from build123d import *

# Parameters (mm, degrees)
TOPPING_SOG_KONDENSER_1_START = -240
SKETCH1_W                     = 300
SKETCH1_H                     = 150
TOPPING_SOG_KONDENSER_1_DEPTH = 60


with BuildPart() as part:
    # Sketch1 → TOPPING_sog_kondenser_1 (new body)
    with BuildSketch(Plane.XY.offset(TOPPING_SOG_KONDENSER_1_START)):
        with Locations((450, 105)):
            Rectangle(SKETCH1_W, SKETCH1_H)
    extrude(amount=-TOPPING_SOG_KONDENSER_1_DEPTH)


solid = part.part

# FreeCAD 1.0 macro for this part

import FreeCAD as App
import Part
import Sketcher
from FreeCAD import Vector


def add_polygon(sketch, points):
    """Adds a closed chain of lines whose ends are joined by coincident constraints."""
    first, n = sketch.GeometryCount, len(points)
    for a, b in zip(points, points[1:] + points[:1]):
        sketch.addGeometry(Part.LineSegment(App.Vector(*a, 0), App.Vector(*b, 0)), False)
    for i in range(n):
        sketch.addConstraint(Sketcher.Constraint("Coincident", first + i, 2, first + (i + 1) % n, 1))

doc = App.newDocument("Part")
body = doc.addObject("PartDesign::Body", "Body")

# Sketch on XY plane
sketch1 = body.newObject("Sketcher::SketchObject", "Sketch")
sketch1.AttachmentSupport = (doc.getObject("XY_Plane"), [""])
sketch1.MapMode = "FlatFace"
sketch1.AttachmentOffset = App.Placement(Vector(0, 0, -240), App.Rotation())
add_polygon(sketch1, [(300, 180), (300, 30), (600, 30), (600, 180)])  # lines 0-3
sketch1.addConstraint([
    Sketcher.Constraint("Vertical", 0),
    Sketcher.Constraint("Horizontal", 1),
    Sketcher.Constraint("Vertical", 2),
    Sketcher.Constraint("Horizontal", 3),
    Sketcher.Constraint("DistanceX", 1, 1, 1, 2, 300.0),
    Sketcher.Constraint("DistanceY", 0, 2, 0, 1, 150.0),
    Sketcher.Constraint("DistanceX", -1, 1, 0, 2, 300.0),
    Sketcher.Constraint("DistanceY", -1, 1, 0, 2, 30.0),
])
pad1 = body.newObject("PartDesign::Pad", "Pad")
pad1.Profile = sketch1
pad1.Length = 60
pad1.Reversed = True

doc.recompute()
